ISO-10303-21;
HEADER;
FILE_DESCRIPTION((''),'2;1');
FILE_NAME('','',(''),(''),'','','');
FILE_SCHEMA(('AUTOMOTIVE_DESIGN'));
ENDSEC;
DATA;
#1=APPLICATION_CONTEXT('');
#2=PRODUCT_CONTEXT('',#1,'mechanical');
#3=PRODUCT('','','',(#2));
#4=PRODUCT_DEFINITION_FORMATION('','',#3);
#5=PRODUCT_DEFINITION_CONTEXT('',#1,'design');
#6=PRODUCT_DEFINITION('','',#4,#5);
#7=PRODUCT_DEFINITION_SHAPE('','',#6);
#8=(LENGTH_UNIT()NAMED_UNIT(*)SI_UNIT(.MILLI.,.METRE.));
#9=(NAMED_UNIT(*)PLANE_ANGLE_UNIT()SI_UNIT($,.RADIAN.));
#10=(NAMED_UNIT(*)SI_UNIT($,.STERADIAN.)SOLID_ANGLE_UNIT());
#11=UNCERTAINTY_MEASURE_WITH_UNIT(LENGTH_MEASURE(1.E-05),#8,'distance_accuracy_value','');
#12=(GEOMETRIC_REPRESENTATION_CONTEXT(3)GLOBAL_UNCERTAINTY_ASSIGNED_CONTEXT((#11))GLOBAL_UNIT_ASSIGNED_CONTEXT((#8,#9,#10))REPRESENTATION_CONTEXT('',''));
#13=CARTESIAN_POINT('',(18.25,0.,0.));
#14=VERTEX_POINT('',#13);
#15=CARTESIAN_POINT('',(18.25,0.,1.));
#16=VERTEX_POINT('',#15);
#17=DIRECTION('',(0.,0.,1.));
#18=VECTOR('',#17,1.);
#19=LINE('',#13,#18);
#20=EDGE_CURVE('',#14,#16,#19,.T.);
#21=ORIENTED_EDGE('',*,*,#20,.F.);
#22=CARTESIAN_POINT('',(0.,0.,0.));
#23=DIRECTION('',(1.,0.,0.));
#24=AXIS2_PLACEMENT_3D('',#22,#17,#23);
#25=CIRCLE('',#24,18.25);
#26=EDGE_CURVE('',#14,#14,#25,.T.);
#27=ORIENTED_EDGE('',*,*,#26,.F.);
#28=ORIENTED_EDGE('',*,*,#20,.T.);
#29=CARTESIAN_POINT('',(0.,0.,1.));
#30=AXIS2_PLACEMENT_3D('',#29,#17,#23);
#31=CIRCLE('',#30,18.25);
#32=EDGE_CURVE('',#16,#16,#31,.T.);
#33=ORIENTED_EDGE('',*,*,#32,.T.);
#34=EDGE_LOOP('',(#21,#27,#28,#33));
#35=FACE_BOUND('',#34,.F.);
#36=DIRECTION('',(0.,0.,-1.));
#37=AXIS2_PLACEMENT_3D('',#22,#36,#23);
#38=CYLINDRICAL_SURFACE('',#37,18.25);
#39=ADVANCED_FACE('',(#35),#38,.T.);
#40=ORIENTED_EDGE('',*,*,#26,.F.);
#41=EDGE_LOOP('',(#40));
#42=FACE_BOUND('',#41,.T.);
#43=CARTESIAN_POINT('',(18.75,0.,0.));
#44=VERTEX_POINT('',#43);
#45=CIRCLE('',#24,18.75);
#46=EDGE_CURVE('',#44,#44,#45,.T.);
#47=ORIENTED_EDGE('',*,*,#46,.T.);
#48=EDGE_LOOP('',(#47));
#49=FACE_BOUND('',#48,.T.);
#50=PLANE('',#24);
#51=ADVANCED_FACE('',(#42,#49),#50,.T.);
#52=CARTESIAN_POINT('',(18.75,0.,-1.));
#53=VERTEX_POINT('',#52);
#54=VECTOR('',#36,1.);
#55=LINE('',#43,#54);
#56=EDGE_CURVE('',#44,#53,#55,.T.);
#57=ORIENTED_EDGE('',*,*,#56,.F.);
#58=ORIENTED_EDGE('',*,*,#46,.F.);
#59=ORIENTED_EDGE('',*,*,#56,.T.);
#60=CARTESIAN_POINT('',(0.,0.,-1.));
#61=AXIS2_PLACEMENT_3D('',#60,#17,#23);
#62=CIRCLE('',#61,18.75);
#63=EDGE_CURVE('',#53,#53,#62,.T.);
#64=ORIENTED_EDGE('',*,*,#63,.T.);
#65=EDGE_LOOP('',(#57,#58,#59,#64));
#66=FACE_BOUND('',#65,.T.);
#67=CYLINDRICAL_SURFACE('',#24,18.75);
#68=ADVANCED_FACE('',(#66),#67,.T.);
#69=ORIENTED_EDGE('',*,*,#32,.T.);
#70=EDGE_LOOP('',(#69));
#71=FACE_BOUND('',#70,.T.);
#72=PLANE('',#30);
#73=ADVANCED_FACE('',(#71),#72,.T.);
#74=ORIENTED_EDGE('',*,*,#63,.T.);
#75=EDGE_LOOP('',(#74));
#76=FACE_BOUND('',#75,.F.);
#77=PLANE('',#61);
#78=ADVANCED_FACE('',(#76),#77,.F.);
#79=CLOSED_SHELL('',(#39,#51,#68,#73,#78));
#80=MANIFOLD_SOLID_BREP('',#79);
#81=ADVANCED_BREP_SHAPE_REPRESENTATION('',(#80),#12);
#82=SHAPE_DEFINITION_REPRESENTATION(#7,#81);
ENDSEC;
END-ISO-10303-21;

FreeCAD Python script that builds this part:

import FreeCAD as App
import Part
import Sketcher

V = App.Vector

doc = App.newDocument("Part")
body = doc.addObject("PartDesign::Body", "Body")

sketch1 = body.newObject("Sketcher::SketchObject", "Sketch")
sketch1.AttachmentSupport = (doc.getObject("XY_Plane"), [""])
sketch1.MapMode = "FlatFace"
sketch1.addGeometry(Part.Circle(V(0, 0, 0), V(0, 0, 1), 18), False)
sketch1.addConstraint([
    Sketcher.Constraint("Coincident", 0, 3, -1, 1),
    Sketcher.Constraint("Diameter", 0, 36.5),
])
pad1 = body.newObject("PartDesign::Pad", "Pad")
pad1.Profile = sketch1
pad1.Length = 1

sketch2 = body.newObject("Sketcher::SketchObject", "Sketch001")
sketch2.AttachmentSupport = (doc.getObject("XY_Plane"), [""])
sketch2.MapMode = "FlatFace"
sketch2.addGeometry(Part.Circle(V(0, 0, 0), V(0, 0, 1), 19), False)
sketch2.addConstraint([
    Sketcher.Constraint("Coincident", 0, 3, -1, 1),
    Sketcher.Constraint("Diameter", 0, 37.5),
])
pad2 = body.newObject("PartDesign::Pad", "Pad001")
pad2.Profile = sketch2
pad2.Length = 1
pad2.Reversed = True

doc.recompute()
